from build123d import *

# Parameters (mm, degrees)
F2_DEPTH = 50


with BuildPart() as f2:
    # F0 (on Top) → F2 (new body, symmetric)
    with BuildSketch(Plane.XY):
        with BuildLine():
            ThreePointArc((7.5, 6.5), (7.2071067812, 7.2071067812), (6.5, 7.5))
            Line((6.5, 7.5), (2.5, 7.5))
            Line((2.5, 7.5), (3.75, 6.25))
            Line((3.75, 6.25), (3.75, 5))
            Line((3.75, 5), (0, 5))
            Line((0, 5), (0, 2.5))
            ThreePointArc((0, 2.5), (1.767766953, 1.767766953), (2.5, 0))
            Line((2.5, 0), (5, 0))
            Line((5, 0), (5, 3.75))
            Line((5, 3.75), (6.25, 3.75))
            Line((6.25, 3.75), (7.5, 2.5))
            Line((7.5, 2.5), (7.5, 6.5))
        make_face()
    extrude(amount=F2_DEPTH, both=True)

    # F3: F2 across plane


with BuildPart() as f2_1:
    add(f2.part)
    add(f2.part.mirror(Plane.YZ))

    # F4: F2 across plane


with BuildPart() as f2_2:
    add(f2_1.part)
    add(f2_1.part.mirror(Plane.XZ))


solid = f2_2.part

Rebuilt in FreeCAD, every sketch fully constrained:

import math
import FreeCAD as App
import Part
import Sketcher

V = App.Vector
Q = App.Units.Quantity

doc = App.newDocument("Part")
body = doc.addObject("PartDesign::Body", "Body")

# Sketch on XY plane
sketch1 = doc.addObject("Sketcher::SketchObject", "Sketch")
body.addObject(sketch1)
sketch1.AttachmentSupport = (doc.XY_Plane, [""])
sketch1.MapMode = "FlatFace"
sketch1.addGeometry([
    Part.ArcOfCircle(Part.Circle(V(6.5, 6.5, 0), V(0, 0, 1), 1), math.radians(0), math.radians(90)),  # 0
    Part.LineSegment(V(6.5, 7.5, 0), V(2.5, 7.5, 0)),  # 1
    Part.LineSegment(V(2.5, 7.5, 0), V(3.75, 6.25, 0)),  # 2
    Part.LineSegment(V(3.75, 6.25, 0), V(3.75, 5, 0)),  # 3
    Part.LineSegment(V(3.75, 5, 0), V(0, 5, 0)),  # 4
    Part.LineSegment(V(0, 5, 0), V(0, 2.5, 0)),  # 5
    Part.ArcOfCircle(Part.Circle(V(0, 0, 0), V(0, 0, 1), 2.5), math.radians(0), math.radians(90)),  # 6
    Part.LineSegment(V(2.5, 0, 0), V(5, 0, 0)),  # 7
    Part.LineSegment(V(5, 0, 0), V(5, 3.75, 0)),  # 8
    Part.LineSegment(V(5, 3.75, 0), V(6.25, 3.75, 0)),  # 9
    Part.LineSegment(V(6.25, 3.75, 0), V(7.5, 2.5, 0)),  # 10
    Part.LineSegment(V(7.5, 2.5, 0), V(7.5, 6.5, 0)),  # 11
], False)
sketch1.addConstraint([
    Sketcher.Constraint("Tangent", 0, 2, 1, 1),
    Sketcher.Constraint("Coincident", 1, 2, 2, 1),
    Sketcher.Constraint("Coincident", 2, 2, 3, 1),
    Sketcher.Constraint("Coincident", 3, 2, 4, 1),
    Sketcher.Constraint("Coincident", 4, 2, 5, 1),
    Sketcher.Constraint("Coincident", 5, 2, 6, 2),
    Sketcher.Constraint("Coincident", 6, 1, 7, 1),
    Sketcher.Constraint("Coincident", 7, 2, 8, 1),
    Sketcher.Constraint("Coincident", 8, 2, 9, 1),
    Sketcher.Constraint("Coincident", 9, 2, 10, 1),
    Sketcher.Constraint("Coincident", 10, 2, 11, 1),
    Sketcher.Constraint("Tangent", 11, 2, 0, 1),
    Sketcher.Constraint("Horizontal", 1),
    Sketcher.Constraint("Vertical", 3),
    Sketcher.Constraint("Horizontal", 4),
    Sketcher.Constraint("Vertical", 5),
    Sketcher.Constraint("Horizontal", 7),
    Sketcher.Constraint("Vertical", 8),
    Sketcher.Constraint("Horizontal", 9),
    Sketcher.Constraint("Vertical", 11),
    Sketcher.Constraint("Coincident", 6, 3, -1, 1),
    Sketcher.Constraint("PointOnObject", 4, 2, -2),
    Sketcher.Constraint("PointOnObject", 6, 1, -1),
    Sketcher.Constraint("Parallel", 2, 10),
    Sketcher.Constraint("Horizontal", 5, 2, 10, 2),
    Sketcher.Constraint("Vertical", 1, 2, 6, 1),
    Sketcher.Constraint("Equal", 9, 3),
    Sketcher.Constraint("Equal", 7, 5),
    Sketcher.Constraint("Equal", 4, 8),
    Sketcher.Constraint("Equal", 1, 11),
    Sketcher.Constraint("Radius", 0, Q("1 mm")),
    Sketcher.Constraint("Radius", 6, Q("2.5 mm")),
    Sketcher.Constraint("DistanceX", 1, 2, 1, 1, Q("4 mm")),
    Sketcher.Constraint("DistanceX", 7, 1, 7, 2, Q("2.5 mm")),
    Sketcher.Constraint("DistanceX", 4, 2, 4, 1, Q("3.75 mm")),
])
pad1 = doc.addObject("PartDesign::Pad", "Pad")
body.addObject(pad1)
pad1.Profile = sketch1
pad1.Length = 100
pad1.Midplane = True
body2 = doc.addObject("PartDesign::Body", "Body001")
doc.recompute()

body2.BaseFeature = body
doc.recompute()

mirroring = doc.addObject("Part::Mirroring", "Mirroring")
mirroring.Source = body
mirroring.Base = V(0, 0, 0)
mirroring.Normal = V(1, 0, 0)
body3 = doc.addObject("PartDesign::Body", "Body002")
body3.BaseFeature = mirroring
boolean = doc.addObject("PartDesign::Boolean", "Boolean")
body2.addObject(boolean)
boolean.Type = "Fuse"
boolean.addObjects([body3])
doc.recompute()
body4 = doc.addObject("PartDesign::Body", "Body003")
doc.recompute()

body4.BaseFeature = body2
doc.recompute()

mirroring2 = doc.addObject("Part::Mirroring", "Mirroring001")
mirroring2.Source = body2
mirroring2.Base = V(0, 0, 0)
mirroring2.Normal = V(0, -1, 0)
body5 = doc.addObject("PartDesign::Body", "Body004")
body5.BaseFeature = mirroring2
boolean2 = doc.addObject("PartDesign::Boolean", "Boolean001")
body4.addObject(boolean2)
boolean2.Type = "Fuse"
boolean2.addObjects([body5])
doc.recompute()
mirroring.Visibility = False
mirroring2.Visibility = False

doc.recompute()
